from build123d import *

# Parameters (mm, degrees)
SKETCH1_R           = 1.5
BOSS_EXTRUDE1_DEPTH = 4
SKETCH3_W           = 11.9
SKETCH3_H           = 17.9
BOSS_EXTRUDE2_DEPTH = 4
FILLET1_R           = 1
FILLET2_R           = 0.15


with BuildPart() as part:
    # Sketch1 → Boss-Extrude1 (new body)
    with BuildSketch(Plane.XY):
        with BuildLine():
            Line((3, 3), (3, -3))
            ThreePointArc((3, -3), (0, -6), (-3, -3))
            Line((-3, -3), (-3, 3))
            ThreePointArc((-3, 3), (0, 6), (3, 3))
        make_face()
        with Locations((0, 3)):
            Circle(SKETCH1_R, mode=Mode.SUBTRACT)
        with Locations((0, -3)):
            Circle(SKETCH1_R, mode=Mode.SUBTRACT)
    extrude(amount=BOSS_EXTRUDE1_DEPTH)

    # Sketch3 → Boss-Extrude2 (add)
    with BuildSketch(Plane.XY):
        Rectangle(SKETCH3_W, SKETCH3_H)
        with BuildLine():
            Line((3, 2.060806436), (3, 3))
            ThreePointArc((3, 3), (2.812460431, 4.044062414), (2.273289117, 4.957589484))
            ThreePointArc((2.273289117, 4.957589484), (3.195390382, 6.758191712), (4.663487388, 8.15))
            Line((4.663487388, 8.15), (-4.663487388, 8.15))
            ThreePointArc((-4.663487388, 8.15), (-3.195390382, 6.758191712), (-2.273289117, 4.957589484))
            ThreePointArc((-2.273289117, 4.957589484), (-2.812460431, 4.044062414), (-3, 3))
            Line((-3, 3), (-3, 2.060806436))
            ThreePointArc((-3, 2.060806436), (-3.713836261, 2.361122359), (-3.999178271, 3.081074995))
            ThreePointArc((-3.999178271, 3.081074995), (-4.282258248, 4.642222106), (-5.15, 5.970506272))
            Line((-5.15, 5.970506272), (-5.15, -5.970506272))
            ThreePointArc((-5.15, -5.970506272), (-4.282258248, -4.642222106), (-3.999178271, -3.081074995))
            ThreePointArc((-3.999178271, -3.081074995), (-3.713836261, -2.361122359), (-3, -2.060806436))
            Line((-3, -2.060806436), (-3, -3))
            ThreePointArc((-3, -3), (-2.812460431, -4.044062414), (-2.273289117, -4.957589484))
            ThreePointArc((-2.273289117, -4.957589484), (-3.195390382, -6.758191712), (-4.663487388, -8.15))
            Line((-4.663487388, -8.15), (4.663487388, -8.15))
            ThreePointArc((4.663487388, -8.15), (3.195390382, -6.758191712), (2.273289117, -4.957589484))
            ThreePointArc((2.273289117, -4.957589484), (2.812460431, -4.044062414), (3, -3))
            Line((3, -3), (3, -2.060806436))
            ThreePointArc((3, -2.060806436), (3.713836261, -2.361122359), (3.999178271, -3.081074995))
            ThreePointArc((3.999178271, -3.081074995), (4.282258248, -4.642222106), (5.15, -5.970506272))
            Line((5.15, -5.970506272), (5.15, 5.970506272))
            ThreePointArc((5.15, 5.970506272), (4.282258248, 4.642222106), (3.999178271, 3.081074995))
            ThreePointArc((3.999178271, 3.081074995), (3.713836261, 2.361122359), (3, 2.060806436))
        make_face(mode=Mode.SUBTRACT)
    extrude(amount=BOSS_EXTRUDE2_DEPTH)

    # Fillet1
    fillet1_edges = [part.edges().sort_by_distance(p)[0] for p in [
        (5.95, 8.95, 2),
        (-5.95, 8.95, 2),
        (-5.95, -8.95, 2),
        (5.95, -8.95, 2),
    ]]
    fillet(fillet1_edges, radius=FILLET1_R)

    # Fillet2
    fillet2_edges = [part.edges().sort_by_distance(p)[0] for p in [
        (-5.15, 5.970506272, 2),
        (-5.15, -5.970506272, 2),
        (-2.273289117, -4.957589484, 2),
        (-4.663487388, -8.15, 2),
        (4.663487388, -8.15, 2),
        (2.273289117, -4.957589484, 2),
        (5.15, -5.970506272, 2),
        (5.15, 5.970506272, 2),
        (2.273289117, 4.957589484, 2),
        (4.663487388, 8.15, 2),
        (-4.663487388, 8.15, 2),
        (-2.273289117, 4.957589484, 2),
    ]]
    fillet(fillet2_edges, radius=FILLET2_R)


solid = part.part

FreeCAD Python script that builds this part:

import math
import FreeCAD as App
import Part
import Sketcher


def edges_at(feature, points):
    """Names of the edges that pass closest to the given points."""
    edges = feature.Shape.Edges
    near = lambda p: min(range(len(edges)), key=lambda i: edges[i].distToShape(Part.Vertex(*p))[0])
    return sorted({f"Edge{near(p) + 1}" for p in points})

doc = App.newDocument("Part")
body = doc.addObject("PartDesign::Body", "Body")

sketch1 = doc.addObject("Sketcher::SketchObject", "Sketch")
body.addObject(sketch1)
sketch1.AttachmentSupport = (doc.XY_Plane, [""])
sketch1.MapMode = "FlatFace"
sketch1.addGeometry(Part.LineSegment(App.Vector(3, -3, 0), App.Vector(3, 3, 0)), False)
sketch1.addGeometry(Part.ArcOfCircle(Part.Circle(App.Vector(0, 3, 0), App.Vector(0, 0, 1), 3), math.radians(0), math.radians(180)), False)
sketch1.addGeometry(Part.LineSegment(App.Vector(-3, 3, 0), App.Vector(-3, -3, 0)), False)
sketch1.addGeometry(Part.ArcOfCircle(Part.Circle(App.Vector(0, -3, 0), App.Vector(0, 0, 1), 3), math.radians(180), math.radians(360)), False)
sketch1.addGeometry(Part.Circle(App.Vector(0, -3, 0), App.Vector(0, 0, 1), 1.5), False)
sketch1.addGeometry(Part.Circle(App.Vector(0, 3, 0), App.Vector(0, 0, 1), 1.5), False)
sketch1.addConstraint(Sketcher.Constraint("Tangent", 0, 2, 1, 1))
sketch1.addConstraint(Sketcher.Constraint("Tangent", 1, 2, 2, 1))
sketch1.addConstraint(Sketcher.Constraint("Tangent", 2, 2, 3, 1))
sketch1.addConstraint(Sketcher.Constraint("Tangent", 3, 2, 0, 1))
sketch1.addConstraint(Sketcher.Constraint("Vertical", 0))
sketch1.addConstraint(Sketcher.Constraint("Vertical", 2))
sketch1.addConstraint(Sketcher.Constraint("Coincident", 4, 3, 3, 3))
sketch1.addConstraint(Sketcher.Constraint("Coincident", 5, 3, 1, 3))
sketch1.addConstraint(Sketcher.Constraint("Equal", 4, 5))
sketch1.addConstraint(Sketcher.Constraint("Symmetric", 1, 3, 3, 3, -1, 1))
sketch1.addConstraint(Sketcher.Constraint("Diameter", 4, 3.0))
sketch1.addConstraint(Sketcher.Constraint("Radius", 1, 3.0))
sketch1.addConstraint(Sketcher.Constraint("DistanceY", 0, 1, 0, 2, 6.0))
pad1 = doc.addObject("PartDesign::Pad", "Pad")
body.addObject(pad1)
pad1.Profile = sketch1
pad1.Length = 4

sketch2 = doc.addObject("Sketcher::SketchObject", "Sketch001")
body.addObject(sketch2)
sketch2.AttachmentSupport = (doc.XY_Plane, [""])
sketch2.MapMode = "FlatFace"
sketch2.addGeometry(Part.LineSegment(App.Vector(-6, 8.9, 0), App.Vector(-6, -8.9, 0)), False)
sketch2.addGeometry(Part.LineSegment(App.Vector(-6, -8.9, 0), App.Vector(6, -8.9, 0)), False)
sketch2.addGeometry(Part.LineSegment(App.Vector(6, -8.9, 0), App.Vector(6, 8.9, 0)), False)
sketch2.addGeometry(Part.LineSegment(App.Vector(6, 8.9, 0), App.Vector(-6, 8.9, 0)), False)
sketch2.addGeometry(Part.LineSegment(App.Vector(3, 3, 0), App.Vector(3, 2.1, 0)), False)
sketch2.addGeometry(Part.ArcOfCircle(Part.Circle(App.Vector(3, 3.1, 0), App.Vector(0, 0, 1), 1), math.radians(-90), math.radians(1)), False)
sketch2.addGeometry(Part.ArcOfCircle(Part.Circle(App.Vector(8, 3.2, 0), App.Vector(0, 0, 1), 4), math.radians(135), math.radians(181)), False)
sketch2.addGeometry(Part.LineSegment(App.Vector(5.2, 6, 0), App.Vector(5.2, -6, 0)), False)
sketch2.addGeometry(Part.ArcOfCircle(Part.Circle(App.Vector(8, -3.2, 0), App.Vector(0, 0, 1), 4), math.radians(179), math.radians(225)), False)
sketch2.addGeometry(Part.ArcOfCircle(Part.Circle(App.Vector(3, -3.1, 0), App.Vector(0, 0, 1), 1), math.radians(-1), math.radians(90)), False)
sketch2.addGeometry(Part.LineSegment(App.Vector(3, -2.1, 0), App.Vector(3, -3, 0)), False)
sketch2.addGeometry(Part.ArcOfCircle(Part.Circle(App.Vector(0, -3, 0), App.Vector(0, 0, 1), 3), math.radians(-41), math.radians(0)), False)
sketch2.addGeometry(Part.ArcOfCircle(Part.Circle(App.Vector(8, -3.2, 0), App.Vector(0, 0, 1), 6), math.radians(-163), math.radians(-124)), False)
sketch2.addGeometry(Part.LineSegment(App.Vector(4.7, -8.2, 0), App.Vector(-4.7, -8.2, 0)), False)
sketch2.addGeometry(Part.ArcOfCircle(Part.Circle(App.Vector(-8, -3.2, 0), App.Vector(0, 0, 1), 6), math.radians(-56), math.radians(-17)), False)
sketch2.addGeometry(Part.ArcOfCircle(Part.Circle(App.Vector(0, -3, 0), App.Vector(0, 0, 1), 3), math.radians(180), math.radians(221)), False)
sketch2.addGeometry(Part.LineSegment(App.Vector(-3, -3, 0), App.Vector(-3, -2.1, 0)), False)
sketch2.addGeometry(Part.ArcOfCircle(Part.Circle(App.Vector(-3, -3.1, 0), App.Vector(0, 0, 1), 1), math.radians(90), math.radians(181)), False)
sketch2.addGeometry(Part.ArcOfCircle(Part.Circle(App.Vector(-8, -3.2, 0), App.Vector(0, 0, 1), 4), math.radians(-45), math.radians(1)), False)
sketch2.addGeometry(Part.LineSegment(App.Vector(-5.2, -6, 0), App.Vector(-5.2, 6, 0)), False)
sketch2.addGeometry(Part.ArcOfCircle(Part.Circle(App.Vector(-8, 3.2, 0), App.Vector(0, 0, 1), 4), math.radians(-1), math.radians(45)), False)
sketch2.addGeometry(Part.ArcOfCircle(Part.Circle(App.Vector(-3, 3.1, 0), App.Vector(0, 0, 1), 1), math.radians(179), math.radians(270)), False)
sketch2.addGeometry(Part.LineSegment(App.Vector(-3, 2.1, 0), App.Vector(-3, 3, 0)), False)
sketch2.addGeometry(Part.ArcOfCircle(Part.Circle(App.Vector(0, 3, 0), App.Vector(0, 0, 1), 3), math.radians(139), math.radians(180)), False)
sketch2.addGeometry(Part.ArcOfCircle(Part.Circle(App.Vector(-8, 3.2, 0), App.Vector(0, 0, 1), 6), math.radians(17), math.radians(56)), False)
sketch2.addGeometry(Part.LineSegment(App.Vector(-4.7, 8.2, 0), App.Vector(4.7, 8.2, 0)), False)
sketch2.addGeometry(Part.ArcOfCircle(Part.Circle(App.Vector(8, 3.2, 0), App.Vector(0, 0, 1), 6), math.radians(124), math.radians(163)), False)
sketch2.addGeometry(Part.ArcOfCircle(Part.Circle(App.Vector(0, 3, 0), App.Vector(0, 0, 1), 3), math.radians(0), math.radians(41)), False)
sketch2.addConstraint(Sketcher.Constraint("Coincident", 0, 2, 1, 1))
sketch2.addConstraint(Sketcher.Constraint("Coincident", 1, 2, 2, 1))
sketch2.addConstraint(Sketcher.Constraint("Coincident", 2, 2, 3, 1))
sketch2.addConstraint(Sketcher.Constraint("Coincident", 3, 2, 0, 1))
sketch2.addConstraint(Sketcher.Constraint("Coincident", 4, 2, 5, 1))
sketch2.addConstraint(Sketcher.Constraint("Tangent", 5, 2, 6, 2))
sketch2.addConstraint(Sketcher.Constraint("Coincident", 6, 1, 7, 1))
sketch2.addConstraint(Sketcher.Constraint("Coincident", 7, 2, 8, 2))
sketch2.addConstraint(Sketcher.Constraint("Tangent", 8, 1, 9, 1))
sketch2.addConstraint(Sketcher.Constraint("Coincident", 9, 2, 10, 1))
sketch2.addConstraint(Sketcher.Constraint("Tangent", 10, 2, 11, 2))
sketch2.addConstraint(Sketcher.Constraint("Coincident", 11, 1, 12, 1))
sketch2.addConstraint(Sketcher.Constraint("Coincident", 12, 2, 13, 1))
sketch2.addConstraint(Sketcher.Constraint("Coincident", 13, 2, 14, 1))
sketch2.addConstraint(Sketcher.Constraint("Coincident", 14, 2, 15, 2))
sketch2.addConstraint(Sketcher.Constraint("Tangent", 15, 1, 16, 1))
sketch2.addConstraint(Sketcher.Constraint("Coincident", 16, 2, 17, 1))
sketch2.addConstraint(Sketcher.Constraint("Tangent", 17, 2, 18, 2))
sketch2.addConstraint(Sketcher.Constraint("Coincident", 18, 1, 19, 1))
sketch2.addConstraint(Sketcher.Constraint("Coincident", 19, 2, 20, 2))
sketch2.addConstraint(Sketcher.Constraint("Tangent", 20, 1, 21, 1))
sketch2.addConstraint(Sketcher.Constraint("Coincident", 21, 2, 22, 1))
sketch2.addConstraint(Sketcher.Constraint("Tangent", 22, 2, 23, 2))
sketch2.addConstraint(Sketcher.Constraint("Coincident", 23, 1, 24, 1))
sketch2.addConstraint(Sketcher.Constraint("Coincident", 24, 2, 25, 1))
sketch2.addConstraint(Sketcher.Constraint("Coincident", 25, 2, 26, 1))
sketch2.addConstraint(Sketcher.Constraint("Coincident", 26, 2, 27, 2))
sketch2.addConstraint(Sketcher.Constraint("Tangent", 27, 1, 4, 1))
sketch2.addConstraint(Sketcher.Constraint("Vertical", 0))
sketch2.addConstraint(Sketcher.Constraint("Horizontal", 1))
sketch2.addConstraint(Sketcher.Constraint("Vertical", 2))
sketch2.addConstraint(Sketcher.Constraint("Horizontal", 3))
sketch2.addConstraint(Sketcher.Constraint("Vertical", 4))
sketch2.addConstraint(Sketcher.Constraint("Vertical", 7))
sketch2.addConstraint(Sketcher.Constraint("Vertical", 10))
sketch2.addConstraint(Sketcher.Constraint("Horizontal", 13))
sketch2.addConstraint(Sketcher.Constraint("Vertical", 16))
sketch2.addConstraint(Sketcher.Constraint("Vertical", 19))
sketch2.addConstraint(Sketcher.Constraint("Vertical", 22))
sketch2.addConstraint(Sketcher.Constraint("Horizontal", 25))
sketch2.addConstraint(Sketcher.Constraint("Coincident", 12, 3, 8, 3))
sketch2.addConstraint(Sketcher.Constraint("Coincident", 15, 3, 11, 3))
sketch2.addConstraint(Sketcher.Constraint("Coincident", 18, 3, 14, 3))
sketch2.addConstraint(Sketcher.Constraint("Coincident", 24, 3, 20, 3))
sketch2.addConstraint(Sketcher.Constraint("Coincident", 26, 3, 6, 3))
sketch2.addConstraint(Sketcher.Constraint("Coincident", 27, 3, 23, 3))
sketch2.addConstraint(Sketcher.Constraint("Equal", 6, 8))
sketch2.addConstraint(Sketcher.Constraint("Equal", 5, 9))
sketch2.addConstraint(Sketcher.Constraint("Equal", 12, 14))
sketch2.addConstraint(Sketcher.Constraint("Equal", 11, 15))
sketch2.addConstraint(Sketcher.Constraint("Equal", 9, 17))
sketch2.addConstraint(Sketcher.Constraint("Equal", 8, 18))
sketch2.addConstraint(Sketcher.Constraint("Equal", 18, 20))
sketch2.addConstraint(Sketcher.Constraint("Equal", 17, 21))
sketch2.addConstraint(Sketcher.Constraint("Equal", 15, 23))
sketch2.addConstraint(Sketcher.Constraint("Equal", 14, 24))
sketch2.addConstraint(Sketcher.Constraint("Equal", 24, 26))
sketch2.addConstraint(Sketcher.Constraint("Equal", 23, 27))
sketch2.addConstraint(Sketcher.Constraint("Symmetric", 6, 3, 14, 3, -1, 1))
sketch2.addConstraint(Sketcher.Constraint("Symmetric", 8, 3, 20, 3, -1, 1))
sketch2.addConstraint(Sketcher.Constraint("Symmetric", 11, 3, 23, 3, -1, 1))
sketch2.addConstraint(Sketcher.Constraint("Symmetric", 0, 2, 2, 2, -1, 1))
sketch2.addConstraint(Sketcher.Constraint("Symmetric", 8, 3, 14, 3, -2))
sketch2.addConstraint(Sketcher.Constraint("Symmetric", 9, 2, 16, 2, -2))
sketch2.addConstraint(Sketcher.Constraint("Horizontal", 5, 3, 21, 3))
sketch2.addConstraint(Sketcher.Constraint("Horizontal", 7, 2, 18, 1))
sketch2.addConstraint(Sketcher.Constraint("Vertical", 5, 3, 9, 3))
sketch2.addConstraint(Sketcher.Constraint("Vertical", 13, 2, 24, 2))
sketch2.addConstraint(Sketcher.Constraint("Radius", 5, 1.0))
sketch2.addConstraint(Sketcher.Constraint("Radius", 6, 4.0))
sketch2.addConstraint(Sketcher.Constraint("Radius", 11, 3.0))
sketch2.addConstraint(Sketcher.Constraint("Radius", 12, 6.0))
sketch2.addConstraint(Sketcher.Constraint("DistanceX", 1, 1, 1, 2, 11.9))
sketch2.addConstraint(Sketcher.Constraint("DistanceY", 0, 2, 0, 1, 17.9))
sketch2.addConstraint(Sketcher.Constraint("DistanceY", 11, 3, -1, 1, 3.0))
sketch2.addConstraint(Sketcher.Constraint("DistanceX", 6, 1, 2, 2, 0.8))
sketch2.addConstraint(Sketcher.Constraint("DistanceY", 1, 2, 12, 2, 0.8))
sketch2.addConstraint(Sketcher.Constraint("DistanceY", 8, 3, 6, 3, 6.3243))
sketch2.addConstraint(Sketcher.Constraint("DistanceY", 5, 3, 6, 1, 2.9097))
sketch2.addConstraint(Sketcher.Constraint("DistanceX", 11, 1, 12, 2, 2.390198))
pad2 = doc.addObject("PartDesign::Pad", "Pad001")
body.addObject(pad2)
pad2.Profile = sketch2
pad2.Length = 4
doc.recompute()

fillet = doc.addObject("PartDesign::Fillet", "Fillet")
body.addObject(fillet)
fillet.Base = (pad2, edges_at(pad2, [
    (5.95, 8.95, 2),
    (-5.95, 8.95, 2),
    (-5.95, -8.95, 2),
    (5.95, -8.95, 2),
]))
fillet.Radius = 1
doc.recompute()

fillet2 = doc.addObject("PartDesign::Fillet", "Fillet001")
body.addObject(fillet2)
fillet2.Base = (fillet, edges_at(fillet, [
    (-5.15, 5.971, 2),
    (-5.15, -5.971, 2),
    (-2.273, -4.958, 2),
    (-4.663, -8.15, 2),
    (4.663, -8.15, 2),
    (2.273, -4.958, 2),
    (5.15, -5.971, 2),
    (5.15, 5.971, 2),
    (2.273, 4.958, 2),
    (4.663, 8.15, 2),
    (-4.663, 8.15, 2),
    (-2.273, 4.958, 2),
]))
fillet2.Radius = 0.15

doc.recompute()
